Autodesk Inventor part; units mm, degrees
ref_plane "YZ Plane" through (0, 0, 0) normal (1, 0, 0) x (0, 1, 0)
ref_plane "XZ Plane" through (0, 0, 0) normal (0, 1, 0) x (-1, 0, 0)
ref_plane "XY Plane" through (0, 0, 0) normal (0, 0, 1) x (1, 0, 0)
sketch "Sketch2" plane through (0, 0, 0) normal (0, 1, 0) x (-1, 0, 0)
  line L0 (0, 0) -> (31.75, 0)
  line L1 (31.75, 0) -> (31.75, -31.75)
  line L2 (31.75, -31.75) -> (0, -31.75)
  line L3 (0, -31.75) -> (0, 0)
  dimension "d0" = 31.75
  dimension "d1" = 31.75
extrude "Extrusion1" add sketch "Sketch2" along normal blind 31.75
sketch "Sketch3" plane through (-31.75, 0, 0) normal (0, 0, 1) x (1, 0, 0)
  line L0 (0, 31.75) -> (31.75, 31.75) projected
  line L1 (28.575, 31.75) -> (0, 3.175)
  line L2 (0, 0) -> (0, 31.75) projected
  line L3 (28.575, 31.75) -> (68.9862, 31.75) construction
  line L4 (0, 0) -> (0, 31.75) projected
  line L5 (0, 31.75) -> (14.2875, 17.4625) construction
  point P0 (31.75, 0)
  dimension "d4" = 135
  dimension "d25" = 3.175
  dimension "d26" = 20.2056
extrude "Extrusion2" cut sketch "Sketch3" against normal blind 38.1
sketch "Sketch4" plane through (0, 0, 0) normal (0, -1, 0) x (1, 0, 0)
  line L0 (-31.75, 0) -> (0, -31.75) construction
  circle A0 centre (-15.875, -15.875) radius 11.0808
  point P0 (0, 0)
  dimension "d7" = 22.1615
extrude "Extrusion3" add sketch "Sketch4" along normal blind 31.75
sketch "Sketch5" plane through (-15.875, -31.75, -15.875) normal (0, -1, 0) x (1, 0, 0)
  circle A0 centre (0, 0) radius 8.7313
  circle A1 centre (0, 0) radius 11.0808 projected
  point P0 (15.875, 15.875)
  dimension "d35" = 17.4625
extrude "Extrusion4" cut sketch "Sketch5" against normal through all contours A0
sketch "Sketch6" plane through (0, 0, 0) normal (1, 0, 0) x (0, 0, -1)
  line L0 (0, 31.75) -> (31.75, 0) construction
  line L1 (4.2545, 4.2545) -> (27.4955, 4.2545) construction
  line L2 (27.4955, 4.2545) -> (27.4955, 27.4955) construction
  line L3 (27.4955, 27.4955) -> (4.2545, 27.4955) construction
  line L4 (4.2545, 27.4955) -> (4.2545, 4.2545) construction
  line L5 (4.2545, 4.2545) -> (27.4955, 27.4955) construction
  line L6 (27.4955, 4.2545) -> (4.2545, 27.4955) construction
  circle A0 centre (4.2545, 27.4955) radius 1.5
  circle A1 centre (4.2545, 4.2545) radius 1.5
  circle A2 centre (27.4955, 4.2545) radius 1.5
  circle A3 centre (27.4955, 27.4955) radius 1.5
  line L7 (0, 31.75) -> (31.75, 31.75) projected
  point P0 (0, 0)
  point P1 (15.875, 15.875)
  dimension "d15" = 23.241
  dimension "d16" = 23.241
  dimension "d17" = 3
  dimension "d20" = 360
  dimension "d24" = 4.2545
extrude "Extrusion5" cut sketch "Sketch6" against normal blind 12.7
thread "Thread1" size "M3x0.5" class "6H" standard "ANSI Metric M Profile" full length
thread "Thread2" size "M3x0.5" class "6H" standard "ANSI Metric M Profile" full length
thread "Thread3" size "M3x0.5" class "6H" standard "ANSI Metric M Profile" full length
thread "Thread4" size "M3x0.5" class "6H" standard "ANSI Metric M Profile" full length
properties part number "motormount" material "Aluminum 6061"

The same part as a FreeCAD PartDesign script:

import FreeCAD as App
import Part
import Sketcher
Q = App.Units.Quantity

doc = App.newDocument("Part")
body = doc.addObject("PartDesign::Body", "Body")

# Sketch on XZ plane
sketch1 = body.newObject("Sketcher::SketchObject", "Sketch")
sketch1.AttachmentSupport = (doc.getObject("XZ_Plane"), [""])
sketch1.MapMode = "FlatFace"
sketch1.addGeometry(Part.LineSegment(App.Vector(-32, 0, 0), App.Vector(0, 0, 0)), False)
sketch1.addGeometry(Part.LineSegment(App.Vector(0, 0, 0), App.Vector(0, -32, 0)), False)
sketch1.addGeometry(Part.LineSegment(App.Vector(0, -32, 0), App.Vector(-32, -32, 0)), False)
sketch1.addGeometry(Part.LineSegment(App.Vector(-32, -32, 0), App.Vector(-32, 0, 0)), False)
sketch1.addConstraint(Sketcher.Constraint("Coincident", 0, 2, 1, 1))
sketch1.addConstraint(Sketcher.Constraint("Coincident", 1, 2, 2, 1))
sketch1.addConstraint(Sketcher.Constraint("Coincident", 2, 2, 3, 1))
sketch1.addConstraint(Sketcher.Constraint("Coincident", 3, 2, 0, 1))
sketch1.addConstraint(Sketcher.Constraint("Horizontal", 0))
sketch1.addConstraint(Sketcher.Constraint("Vertical", 1))
sketch1.addConstraint(Sketcher.Constraint("Horizontal", 2))
sketch1.addConstraint(Sketcher.Constraint("Vertical", 3))
sketch1.addConstraint(Sketcher.Constraint("Coincident", 0, 2, -1, 1))
sketch1.addConstraint(Sketcher.Constraint("Equal", 2, 1))
sketch1.addConstraint(Sketcher.Constraint("DistanceX", 0, 1, 0, 2, Q("1.25 in")))
pad1 = body.newObject("PartDesign::Pad", "Pad")
pad1.Profile = sketch1
pad1.Length = Q("1.25 in")
pad1.Reversed = True

# Sketch on XY plane
sketch2 = body.newObject("Sketcher::SketchObject", "Sketch001")
sketch2.AttachmentSupport = (doc.getObject("XY_Plane"), [""])
sketch2.MapMode = "FlatFace"
sketch2.addGeometry(Part.LineSegment(App.Vector(-3, 32, 0), App.Vector(-32, 32, 0)), False)
sketch2.addGeometry(Part.LineSegment(App.Vector(-32, 32, 0), App.Vector(-32, 3, 0)), False)
sketch2.addGeometry(Part.LineSegment(App.Vector(-32, 3, 0), App.Vector(-3, 32, 0)), False)
sketch2.addConstraint(Sketcher.Constraint("Coincident", 0, 2, 1, 1))
sketch2.addConstraint(Sketcher.Constraint("Coincident", 1, 2, 2, 1))
sketch2.addConstraint(Sketcher.Constraint("Coincident", 2, 2, 0, 1))
sketch2.addConstraint(Sketcher.Constraint("Horizontal", 0))
sketch2.addConstraint(Sketcher.Constraint("Vertical", 1))
sketch2.addConstraint(Sketcher.Constraint("Equal", 0, 1))
sketch2.addConstraint(Sketcher.Constraint("DistanceY", -1, 1, 1, 2, Q("0.125 in")))
sketch2.addConstraint(Sketcher.Constraint("DistanceX", 2, 2, -1, 1, Q("0.125 in")))
sketch2.addConstraint(Sketcher.Constraint("DistanceX", 0, 2, 0, 1, Q("1.125 in")))
pocket1 = body.newObject("PartDesign::Pocket", "Pocket")
pocket1.Profile = sketch2
pocket1.Length = Q("1.5 in")

# Sketch on XZ plane
sketch3 = body.newObject("Sketcher::SketchObject", "Sketch002")
sketch3.AttachmentSupport = (doc.getObject("XZ_Plane"), [""])
sketch3.MapMode = "FlatFace"
sketch3.addGeometry(Part.Circle(App.Vector(-16, -16, 0), App.Vector(0, 0, 1), 11), False)
sketch3.addConstraint(Sketcher.Constraint("Diameter", 0, Q("0.8725 in")))
sketch3.addConstraint(Sketcher.Constraint("DistanceX", 0, 3, -1, 1, Q("0.625 in")))
sketch3.addConstraint(Sketcher.Constraint("DistanceY", 0, 3, -1, 1, Q("0.625 in")))
pad2 = body.newObject("PartDesign::Pad", "Pad001")
pad2.Profile = sketch3
pad2.Length = Q("1.25 in")

# Sketch on XZ plane
sketch4 = body.newObject("Sketcher::SketchObject", "Sketch003")
sketch4.AttachmentSupport = (doc.getObject("XZ_Plane"), [""])
sketch4.MapMode = "FlatFace"
sketch4.AttachmentOffset = App.Placement(App.Vector(0, 0, 1.25 * 25.4), App.Rotation())
sketch4.addGeometry(Part.Circle(App.Vector(-16, -16, 0), App.Vector(0, 0, 1), 9), False)
sketch4.addConstraint(Sketcher.Constraint("Diameter", 0, Q("0.6875 in")))
sketch4.addConstraint(Sketcher.Constraint("DistanceX", 0, 3, -1, 1, Q("0.625 in")))
sketch4.addConstraint(Sketcher.Constraint("DistanceY", 0, 3, -1, 1, Q("0.625 in")))
pocket2 = body.newObject("PartDesign::Pocket", "Pocket001")
pocket2.Profile = sketch4
pocket2.Type = "ThroughAll"

# Sketch on YZ plane
sketch5 = body.newObject("Sketcher::SketchObject", "Sketch004")
sketch5.AttachmentSupport = (doc.getObject("YZ_Plane"), [""])
sketch5.MapMode = "FlatFace"
sketch5.addGeometry(Part.Circle(App.Vector(27.5, -4.3, 0), App.Vector(0, 0, 1), 1.5), False)
sketch5.addGeometry(Part.Circle(App.Vector(4.3, -4.3, 0), App.Vector(0, 0, 1), 1.5), False)
sketch5.addGeometry(Part.Circle(App.Vector(4.3, -27.5, 0), App.Vector(0, 0, 1), 1.5), False)
sketch5.addGeometry(Part.Circle(App.Vector(27.5, -27.5, 0), App.Vector(0, 0, 1), 1.5), False)
sketch5.addConstraint(Sketcher.Constraint("Equal", 0, 1))
sketch5.addConstraint(Sketcher.Constraint("Equal", 1, 2))
sketch5.addConstraint(Sketcher.Constraint("Equal", 2, 3))
sketch5.addConstraint(Sketcher.Constraint("Horizontal", 0, 3, 1, 3))
sketch5.addConstraint(Sketcher.Constraint("Horizontal", 2, 3, 3, 3))
sketch5.addConstraint(Sketcher.Constraint("Vertical", 1, 3, 2, 3))
sketch5.addConstraint(Sketcher.Constraint("Vertical", 0, 3, 3, 3))
sketch5.addConstraint(Sketcher.Constraint("Diameter", 0, Q("0.1181 in")))
sketch5.addConstraint(Sketcher.Constraint("DistanceX", 1, 3, 0, 3, Q("0.915 in")))
sketch5.addConstraint(Sketcher.Constraint("DistanceY", 2, 3, 1, 3, Q("0.915 in")))
sketch5.addConstraint(Sketcher.Constraint("DistanceY", 0, 3, -1, 1, Q("0.1675 in")))
sketch5.addConstraint(Sketcher.Constraint("DistanceX", -1, 1, 1, 3, Q("0.1675 in")))
pocket3 = body.newObject("PartDesign::Pocket", "Pocket002")
pocket3.Profile = sketch5
pocket3.Length = Q("0.5 in")

doc.recompute()
